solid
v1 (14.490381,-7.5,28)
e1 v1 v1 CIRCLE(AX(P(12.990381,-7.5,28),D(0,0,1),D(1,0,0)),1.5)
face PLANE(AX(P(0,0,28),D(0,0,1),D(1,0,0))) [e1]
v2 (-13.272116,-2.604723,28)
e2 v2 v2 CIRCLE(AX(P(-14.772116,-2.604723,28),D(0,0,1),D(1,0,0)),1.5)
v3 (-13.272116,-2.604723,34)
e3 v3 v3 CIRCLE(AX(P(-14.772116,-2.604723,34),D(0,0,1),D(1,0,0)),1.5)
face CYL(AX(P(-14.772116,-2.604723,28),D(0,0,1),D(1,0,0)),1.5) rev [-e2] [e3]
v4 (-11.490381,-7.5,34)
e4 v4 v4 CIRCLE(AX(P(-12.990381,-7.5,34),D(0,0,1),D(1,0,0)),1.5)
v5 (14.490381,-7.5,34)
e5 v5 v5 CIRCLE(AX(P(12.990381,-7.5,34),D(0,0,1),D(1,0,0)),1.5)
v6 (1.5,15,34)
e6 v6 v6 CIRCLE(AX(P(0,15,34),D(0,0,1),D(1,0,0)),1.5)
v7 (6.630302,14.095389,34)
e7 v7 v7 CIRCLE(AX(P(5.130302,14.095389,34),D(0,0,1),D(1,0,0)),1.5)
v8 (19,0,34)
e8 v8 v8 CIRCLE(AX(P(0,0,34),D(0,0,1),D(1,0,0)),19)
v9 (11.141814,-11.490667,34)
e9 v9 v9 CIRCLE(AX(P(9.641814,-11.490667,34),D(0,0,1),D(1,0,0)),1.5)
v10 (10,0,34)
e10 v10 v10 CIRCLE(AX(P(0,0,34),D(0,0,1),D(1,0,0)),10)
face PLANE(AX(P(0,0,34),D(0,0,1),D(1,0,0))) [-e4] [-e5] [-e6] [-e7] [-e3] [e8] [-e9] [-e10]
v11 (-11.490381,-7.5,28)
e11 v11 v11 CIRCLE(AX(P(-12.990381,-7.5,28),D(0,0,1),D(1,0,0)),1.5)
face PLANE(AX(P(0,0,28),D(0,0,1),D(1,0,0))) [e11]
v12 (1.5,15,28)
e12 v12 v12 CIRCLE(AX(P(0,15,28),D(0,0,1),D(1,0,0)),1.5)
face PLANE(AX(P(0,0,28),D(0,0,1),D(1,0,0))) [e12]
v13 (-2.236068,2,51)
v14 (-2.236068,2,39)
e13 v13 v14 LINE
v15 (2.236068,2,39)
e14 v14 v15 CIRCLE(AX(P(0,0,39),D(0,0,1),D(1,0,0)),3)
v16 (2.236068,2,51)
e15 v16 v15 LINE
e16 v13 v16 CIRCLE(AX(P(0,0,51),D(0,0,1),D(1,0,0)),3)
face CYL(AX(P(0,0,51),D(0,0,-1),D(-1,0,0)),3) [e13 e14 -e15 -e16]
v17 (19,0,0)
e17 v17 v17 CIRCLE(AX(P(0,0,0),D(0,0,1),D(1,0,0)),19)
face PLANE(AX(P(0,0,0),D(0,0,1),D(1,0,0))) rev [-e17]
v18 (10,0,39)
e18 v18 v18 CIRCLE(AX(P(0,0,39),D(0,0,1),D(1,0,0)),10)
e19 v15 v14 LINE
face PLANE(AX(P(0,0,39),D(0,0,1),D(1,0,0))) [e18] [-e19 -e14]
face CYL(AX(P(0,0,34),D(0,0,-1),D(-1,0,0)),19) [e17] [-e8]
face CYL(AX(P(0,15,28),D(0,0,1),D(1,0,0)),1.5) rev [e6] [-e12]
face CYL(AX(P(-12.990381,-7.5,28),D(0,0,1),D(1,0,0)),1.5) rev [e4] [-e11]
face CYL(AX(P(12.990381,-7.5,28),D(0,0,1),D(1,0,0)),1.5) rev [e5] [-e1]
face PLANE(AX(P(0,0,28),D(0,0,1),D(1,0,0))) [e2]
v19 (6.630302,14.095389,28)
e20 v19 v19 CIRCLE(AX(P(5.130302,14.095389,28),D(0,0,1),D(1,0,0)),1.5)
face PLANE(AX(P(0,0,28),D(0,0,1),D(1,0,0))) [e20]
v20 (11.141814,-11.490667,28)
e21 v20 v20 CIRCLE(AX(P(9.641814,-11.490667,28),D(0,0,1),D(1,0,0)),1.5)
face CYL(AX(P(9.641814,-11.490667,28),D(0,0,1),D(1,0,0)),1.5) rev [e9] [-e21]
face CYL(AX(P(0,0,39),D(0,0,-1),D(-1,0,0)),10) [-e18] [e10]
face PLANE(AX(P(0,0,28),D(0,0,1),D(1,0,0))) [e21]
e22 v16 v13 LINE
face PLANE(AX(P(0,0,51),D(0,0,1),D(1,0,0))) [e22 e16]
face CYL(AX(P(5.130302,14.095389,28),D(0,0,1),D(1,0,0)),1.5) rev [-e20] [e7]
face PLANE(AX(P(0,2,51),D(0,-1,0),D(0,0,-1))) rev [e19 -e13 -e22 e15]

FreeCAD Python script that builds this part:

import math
import FreeCAD as App
import Part
import Sketcher
from FreeCAD import Vector

doc = App.newDocument("Part")
params = doc.addObject("Spreadsheet::Sheet", "Params")
for row, (alias, value) in enumerate([
    ("sketch1_diameter", "38 mm"),
    ("pad1_length", "34 mm"),
    ("sketch2_diameter", "3 mm"),
    ("pocket1_length", "6 mm"),
    ("sketch3_diameter", "20 mm"),
    ("pad2_length", "5 mm"),
    ("sketch4_radius", "3 mm"),
    ("pad3_length", "12 mm"),
], start=1):
    params.set(f"A{row}", alias)
    params.set(f"B{row}", "=" + value)
    params.setAlias(f"B{row}", alias)

body = doc.addObject("PartDesign::Body", "Body")

# Sketch on XY plane
sketch1 = body.newObject("Sketcher::SketchObject", "Sketch")
sketch1.AttachmentSupport = (doc.getObject("XY_Plane"), [""])
sketch1.MapMode = "FlatFace"
sketch1.addGeometry(Part.Circle(Vector(0, 0, 0), Vector(0, 0, 1), 19), False)
sketch1.addConstraint([
    Sketcher.Constraint("Coincident", 0, 3, -1, 1),
    Sketcher.Constraint("Diameter", 0, 38.0),
])
sketch1.setExpression("Constraints[1]", "Params.sketch1_diameter")
pad1 = body.newObject("PartDesign::Pad", "Pad")
pad1.Profile = sketch1
pad1.setExpression("Length", "Params.pad1_length")

# Sketch on XY plane
sketch2 = body.newObject("Sketcher::SketchObject", "Sketch001")
sketch2.AttachmentSupport = (doc.getObject("XY_Plane"), [""])
sketch2.MapMode = "FlatFace"
sketch2.AttachmentOffset = App.Placement(Vector(0, 0, 34), App.Rotation())
sketch2.addGeometry([
    Part.Circle(Vector(-13, -7.5, 0), Vector(0, 0, 1), 1.5),  # 0
    Part.Circle(Vector(-14.8, -2.6, 0), Vector(0, 0, 1), 1.5),  # 1
    Part.Circle(Vector(0, 15, 0), Vector(0, 0, 1), 1.5),  # 2
    Part.Circle(Vector(5.1, 14.1, 0), Vector(0, 0, 1), 1.5),  # 3
    Part.Circle(Vector(13, -7.5, 0), Vector(0, 0, 1), 1.5),  # 4
    Part.Circle(Vector(9.6, -11.5, 0), Vector(0, 0, 1), 1.5),  # 5
], False)
sketch2.addConstraint([
    Sketcher.Constraint("Equal", 0, 1),
    Sketcher.Constraint("Equal", 1, 2),
    Sketcher.Constraint("Equal", 2, 3),
    Sketcher.Constraint("Equal", 3, 4),
    Sketcher.Constraint("Equal", 4, 5),
    Sketcher.Constraint("Symmetric", 0, 3, 4, 3, -2),
    Sketcher.Constraint("PointOnObject", 2, 3, -2),
    Sketcher.Constraint("Diameter", 0, 3.0),
    Sketcher.Constraint("DistanceY", -1, 1, 2, 3, 15.0),
    Sketcher.Constraint("DistanceY", 0, 3, -1, 1, 7.5),
    Sketcher.Constraint("DistanceX", 0, 3, -1, 1, 12.990381),
    Sketcher.Constraint("DistanceY", -1, 1, 3, 3, 14.095389),
    Sketcher.Constraint("DistanceX", 1, 3, 3, 3, 19.902418),
    Sketcher.Constraint("DistanceY", 1, 3, 3, 3, 16.700112),
    Sketcher.Constraint("DistanceX", 3, 3, 4, 3, 7.860079),
    Sketcher.Constraint("DistanceX", 1, 3, 5, 3, 24.41393),
    Sketcher.Constraint("DistanceY", 5, 3, -1, 1, 11.490667),
])
sketch2.setExpression("Constraints[7]", "Params.sketch2_diameter")
pocket1 = body.newObject("PartDesign::Pocket", "Pocket")
pocket1.Profile = sketch2
pocket1.setExpression("Length", "Params.pocket1_length")

# Sketch on XY plane
sketch3 = body.newObject("Sketcher::SketchObject", "Sketch002")
sketch3.AttachmentSupport = (doc.getObject("XY_Plane"), [""])
sketch3.MapMode = "FlatFace"
sketch3.AttachmentOffset = App.Placement(Vector(0, 0, 34), App.Rotation())
sketch3.addGeometry(Part.Circle(Vector(0, 0, 0), Vector(0, 0, 1), 10), False)
sketch3.addConstraint([
    Sketcher.Constraint("Coincident", 0, 3, -1, 1),
    Sketcher.Constraint("Diameter", 0, 20.0),
])
sketch3.setExpression("Constraints[1]", "Params.sketch3_diameter")
pad2 = body.newObject("PartDesign::Pad", "Pad001")
pad2.Profile = sketch3
pad2.setExpression("Length", "Params.pad2_length")

# Sketch on XY plane
sketch4 = body.newObject("Sketcher::SketchObject", "Sketch003")
sketch4.AttachmentSupport = (doc.getObject("XY_Plane"), [""])
sketch4.MapMode = "FlatFace"
sketch4.AttachmentOffset = App.Placement(Vector(0, 0, 39), App.Rotation())
sketch4.addGeometry([
    Part.ArcOfCircle(Part.Circle(Vector(0, 0, 0), Vector(0, 0, 1), 3), math.radians(0), math.radians(42)),
    Part.LineSegment(Vector(2.2, 2, 0), Vector(-2.2, 2, 0)),
    Part.ArcOfCircle(Part.Circle(Vector(0, 0, 0), Vector(0, 0, 1), 3), math.radians(138), math.radians(360)),
], False)
sketch4.addConstraint([
    Sketcher.Constraint("Coincident", 0, 2, 1, 1),
    Sketcher.Constraint("Coincident", 1, 2, 2, 1),
    Sketcher.Constraint("Tangent", 2, 2, 0, 1),
    Sketcher.Constraint("Horizontal", 1),
    Sketcher.Constraint("Coincident", 0, 3, -1, 1),
    Sketcher.Constraint("Equal", 0, 2),
    Sketcher.Constraint("PointOnObject", 2, 2, -1),
    Sketcher.Constraint("Radius", 0, 3.0),
    Sketcher.Constraint("DistanceY", -1, 1, 0, 2, 2.0),
])
sketch4.setExpression("Constraints[7]", "Params.sketch4_radius")
pad3 = body.newObject("PartDesign::Pad", "Pad002")
pad3.Profile = sketch4
pad3.setExpression("Length", "Params.pad3_length")

doc.recompute()
